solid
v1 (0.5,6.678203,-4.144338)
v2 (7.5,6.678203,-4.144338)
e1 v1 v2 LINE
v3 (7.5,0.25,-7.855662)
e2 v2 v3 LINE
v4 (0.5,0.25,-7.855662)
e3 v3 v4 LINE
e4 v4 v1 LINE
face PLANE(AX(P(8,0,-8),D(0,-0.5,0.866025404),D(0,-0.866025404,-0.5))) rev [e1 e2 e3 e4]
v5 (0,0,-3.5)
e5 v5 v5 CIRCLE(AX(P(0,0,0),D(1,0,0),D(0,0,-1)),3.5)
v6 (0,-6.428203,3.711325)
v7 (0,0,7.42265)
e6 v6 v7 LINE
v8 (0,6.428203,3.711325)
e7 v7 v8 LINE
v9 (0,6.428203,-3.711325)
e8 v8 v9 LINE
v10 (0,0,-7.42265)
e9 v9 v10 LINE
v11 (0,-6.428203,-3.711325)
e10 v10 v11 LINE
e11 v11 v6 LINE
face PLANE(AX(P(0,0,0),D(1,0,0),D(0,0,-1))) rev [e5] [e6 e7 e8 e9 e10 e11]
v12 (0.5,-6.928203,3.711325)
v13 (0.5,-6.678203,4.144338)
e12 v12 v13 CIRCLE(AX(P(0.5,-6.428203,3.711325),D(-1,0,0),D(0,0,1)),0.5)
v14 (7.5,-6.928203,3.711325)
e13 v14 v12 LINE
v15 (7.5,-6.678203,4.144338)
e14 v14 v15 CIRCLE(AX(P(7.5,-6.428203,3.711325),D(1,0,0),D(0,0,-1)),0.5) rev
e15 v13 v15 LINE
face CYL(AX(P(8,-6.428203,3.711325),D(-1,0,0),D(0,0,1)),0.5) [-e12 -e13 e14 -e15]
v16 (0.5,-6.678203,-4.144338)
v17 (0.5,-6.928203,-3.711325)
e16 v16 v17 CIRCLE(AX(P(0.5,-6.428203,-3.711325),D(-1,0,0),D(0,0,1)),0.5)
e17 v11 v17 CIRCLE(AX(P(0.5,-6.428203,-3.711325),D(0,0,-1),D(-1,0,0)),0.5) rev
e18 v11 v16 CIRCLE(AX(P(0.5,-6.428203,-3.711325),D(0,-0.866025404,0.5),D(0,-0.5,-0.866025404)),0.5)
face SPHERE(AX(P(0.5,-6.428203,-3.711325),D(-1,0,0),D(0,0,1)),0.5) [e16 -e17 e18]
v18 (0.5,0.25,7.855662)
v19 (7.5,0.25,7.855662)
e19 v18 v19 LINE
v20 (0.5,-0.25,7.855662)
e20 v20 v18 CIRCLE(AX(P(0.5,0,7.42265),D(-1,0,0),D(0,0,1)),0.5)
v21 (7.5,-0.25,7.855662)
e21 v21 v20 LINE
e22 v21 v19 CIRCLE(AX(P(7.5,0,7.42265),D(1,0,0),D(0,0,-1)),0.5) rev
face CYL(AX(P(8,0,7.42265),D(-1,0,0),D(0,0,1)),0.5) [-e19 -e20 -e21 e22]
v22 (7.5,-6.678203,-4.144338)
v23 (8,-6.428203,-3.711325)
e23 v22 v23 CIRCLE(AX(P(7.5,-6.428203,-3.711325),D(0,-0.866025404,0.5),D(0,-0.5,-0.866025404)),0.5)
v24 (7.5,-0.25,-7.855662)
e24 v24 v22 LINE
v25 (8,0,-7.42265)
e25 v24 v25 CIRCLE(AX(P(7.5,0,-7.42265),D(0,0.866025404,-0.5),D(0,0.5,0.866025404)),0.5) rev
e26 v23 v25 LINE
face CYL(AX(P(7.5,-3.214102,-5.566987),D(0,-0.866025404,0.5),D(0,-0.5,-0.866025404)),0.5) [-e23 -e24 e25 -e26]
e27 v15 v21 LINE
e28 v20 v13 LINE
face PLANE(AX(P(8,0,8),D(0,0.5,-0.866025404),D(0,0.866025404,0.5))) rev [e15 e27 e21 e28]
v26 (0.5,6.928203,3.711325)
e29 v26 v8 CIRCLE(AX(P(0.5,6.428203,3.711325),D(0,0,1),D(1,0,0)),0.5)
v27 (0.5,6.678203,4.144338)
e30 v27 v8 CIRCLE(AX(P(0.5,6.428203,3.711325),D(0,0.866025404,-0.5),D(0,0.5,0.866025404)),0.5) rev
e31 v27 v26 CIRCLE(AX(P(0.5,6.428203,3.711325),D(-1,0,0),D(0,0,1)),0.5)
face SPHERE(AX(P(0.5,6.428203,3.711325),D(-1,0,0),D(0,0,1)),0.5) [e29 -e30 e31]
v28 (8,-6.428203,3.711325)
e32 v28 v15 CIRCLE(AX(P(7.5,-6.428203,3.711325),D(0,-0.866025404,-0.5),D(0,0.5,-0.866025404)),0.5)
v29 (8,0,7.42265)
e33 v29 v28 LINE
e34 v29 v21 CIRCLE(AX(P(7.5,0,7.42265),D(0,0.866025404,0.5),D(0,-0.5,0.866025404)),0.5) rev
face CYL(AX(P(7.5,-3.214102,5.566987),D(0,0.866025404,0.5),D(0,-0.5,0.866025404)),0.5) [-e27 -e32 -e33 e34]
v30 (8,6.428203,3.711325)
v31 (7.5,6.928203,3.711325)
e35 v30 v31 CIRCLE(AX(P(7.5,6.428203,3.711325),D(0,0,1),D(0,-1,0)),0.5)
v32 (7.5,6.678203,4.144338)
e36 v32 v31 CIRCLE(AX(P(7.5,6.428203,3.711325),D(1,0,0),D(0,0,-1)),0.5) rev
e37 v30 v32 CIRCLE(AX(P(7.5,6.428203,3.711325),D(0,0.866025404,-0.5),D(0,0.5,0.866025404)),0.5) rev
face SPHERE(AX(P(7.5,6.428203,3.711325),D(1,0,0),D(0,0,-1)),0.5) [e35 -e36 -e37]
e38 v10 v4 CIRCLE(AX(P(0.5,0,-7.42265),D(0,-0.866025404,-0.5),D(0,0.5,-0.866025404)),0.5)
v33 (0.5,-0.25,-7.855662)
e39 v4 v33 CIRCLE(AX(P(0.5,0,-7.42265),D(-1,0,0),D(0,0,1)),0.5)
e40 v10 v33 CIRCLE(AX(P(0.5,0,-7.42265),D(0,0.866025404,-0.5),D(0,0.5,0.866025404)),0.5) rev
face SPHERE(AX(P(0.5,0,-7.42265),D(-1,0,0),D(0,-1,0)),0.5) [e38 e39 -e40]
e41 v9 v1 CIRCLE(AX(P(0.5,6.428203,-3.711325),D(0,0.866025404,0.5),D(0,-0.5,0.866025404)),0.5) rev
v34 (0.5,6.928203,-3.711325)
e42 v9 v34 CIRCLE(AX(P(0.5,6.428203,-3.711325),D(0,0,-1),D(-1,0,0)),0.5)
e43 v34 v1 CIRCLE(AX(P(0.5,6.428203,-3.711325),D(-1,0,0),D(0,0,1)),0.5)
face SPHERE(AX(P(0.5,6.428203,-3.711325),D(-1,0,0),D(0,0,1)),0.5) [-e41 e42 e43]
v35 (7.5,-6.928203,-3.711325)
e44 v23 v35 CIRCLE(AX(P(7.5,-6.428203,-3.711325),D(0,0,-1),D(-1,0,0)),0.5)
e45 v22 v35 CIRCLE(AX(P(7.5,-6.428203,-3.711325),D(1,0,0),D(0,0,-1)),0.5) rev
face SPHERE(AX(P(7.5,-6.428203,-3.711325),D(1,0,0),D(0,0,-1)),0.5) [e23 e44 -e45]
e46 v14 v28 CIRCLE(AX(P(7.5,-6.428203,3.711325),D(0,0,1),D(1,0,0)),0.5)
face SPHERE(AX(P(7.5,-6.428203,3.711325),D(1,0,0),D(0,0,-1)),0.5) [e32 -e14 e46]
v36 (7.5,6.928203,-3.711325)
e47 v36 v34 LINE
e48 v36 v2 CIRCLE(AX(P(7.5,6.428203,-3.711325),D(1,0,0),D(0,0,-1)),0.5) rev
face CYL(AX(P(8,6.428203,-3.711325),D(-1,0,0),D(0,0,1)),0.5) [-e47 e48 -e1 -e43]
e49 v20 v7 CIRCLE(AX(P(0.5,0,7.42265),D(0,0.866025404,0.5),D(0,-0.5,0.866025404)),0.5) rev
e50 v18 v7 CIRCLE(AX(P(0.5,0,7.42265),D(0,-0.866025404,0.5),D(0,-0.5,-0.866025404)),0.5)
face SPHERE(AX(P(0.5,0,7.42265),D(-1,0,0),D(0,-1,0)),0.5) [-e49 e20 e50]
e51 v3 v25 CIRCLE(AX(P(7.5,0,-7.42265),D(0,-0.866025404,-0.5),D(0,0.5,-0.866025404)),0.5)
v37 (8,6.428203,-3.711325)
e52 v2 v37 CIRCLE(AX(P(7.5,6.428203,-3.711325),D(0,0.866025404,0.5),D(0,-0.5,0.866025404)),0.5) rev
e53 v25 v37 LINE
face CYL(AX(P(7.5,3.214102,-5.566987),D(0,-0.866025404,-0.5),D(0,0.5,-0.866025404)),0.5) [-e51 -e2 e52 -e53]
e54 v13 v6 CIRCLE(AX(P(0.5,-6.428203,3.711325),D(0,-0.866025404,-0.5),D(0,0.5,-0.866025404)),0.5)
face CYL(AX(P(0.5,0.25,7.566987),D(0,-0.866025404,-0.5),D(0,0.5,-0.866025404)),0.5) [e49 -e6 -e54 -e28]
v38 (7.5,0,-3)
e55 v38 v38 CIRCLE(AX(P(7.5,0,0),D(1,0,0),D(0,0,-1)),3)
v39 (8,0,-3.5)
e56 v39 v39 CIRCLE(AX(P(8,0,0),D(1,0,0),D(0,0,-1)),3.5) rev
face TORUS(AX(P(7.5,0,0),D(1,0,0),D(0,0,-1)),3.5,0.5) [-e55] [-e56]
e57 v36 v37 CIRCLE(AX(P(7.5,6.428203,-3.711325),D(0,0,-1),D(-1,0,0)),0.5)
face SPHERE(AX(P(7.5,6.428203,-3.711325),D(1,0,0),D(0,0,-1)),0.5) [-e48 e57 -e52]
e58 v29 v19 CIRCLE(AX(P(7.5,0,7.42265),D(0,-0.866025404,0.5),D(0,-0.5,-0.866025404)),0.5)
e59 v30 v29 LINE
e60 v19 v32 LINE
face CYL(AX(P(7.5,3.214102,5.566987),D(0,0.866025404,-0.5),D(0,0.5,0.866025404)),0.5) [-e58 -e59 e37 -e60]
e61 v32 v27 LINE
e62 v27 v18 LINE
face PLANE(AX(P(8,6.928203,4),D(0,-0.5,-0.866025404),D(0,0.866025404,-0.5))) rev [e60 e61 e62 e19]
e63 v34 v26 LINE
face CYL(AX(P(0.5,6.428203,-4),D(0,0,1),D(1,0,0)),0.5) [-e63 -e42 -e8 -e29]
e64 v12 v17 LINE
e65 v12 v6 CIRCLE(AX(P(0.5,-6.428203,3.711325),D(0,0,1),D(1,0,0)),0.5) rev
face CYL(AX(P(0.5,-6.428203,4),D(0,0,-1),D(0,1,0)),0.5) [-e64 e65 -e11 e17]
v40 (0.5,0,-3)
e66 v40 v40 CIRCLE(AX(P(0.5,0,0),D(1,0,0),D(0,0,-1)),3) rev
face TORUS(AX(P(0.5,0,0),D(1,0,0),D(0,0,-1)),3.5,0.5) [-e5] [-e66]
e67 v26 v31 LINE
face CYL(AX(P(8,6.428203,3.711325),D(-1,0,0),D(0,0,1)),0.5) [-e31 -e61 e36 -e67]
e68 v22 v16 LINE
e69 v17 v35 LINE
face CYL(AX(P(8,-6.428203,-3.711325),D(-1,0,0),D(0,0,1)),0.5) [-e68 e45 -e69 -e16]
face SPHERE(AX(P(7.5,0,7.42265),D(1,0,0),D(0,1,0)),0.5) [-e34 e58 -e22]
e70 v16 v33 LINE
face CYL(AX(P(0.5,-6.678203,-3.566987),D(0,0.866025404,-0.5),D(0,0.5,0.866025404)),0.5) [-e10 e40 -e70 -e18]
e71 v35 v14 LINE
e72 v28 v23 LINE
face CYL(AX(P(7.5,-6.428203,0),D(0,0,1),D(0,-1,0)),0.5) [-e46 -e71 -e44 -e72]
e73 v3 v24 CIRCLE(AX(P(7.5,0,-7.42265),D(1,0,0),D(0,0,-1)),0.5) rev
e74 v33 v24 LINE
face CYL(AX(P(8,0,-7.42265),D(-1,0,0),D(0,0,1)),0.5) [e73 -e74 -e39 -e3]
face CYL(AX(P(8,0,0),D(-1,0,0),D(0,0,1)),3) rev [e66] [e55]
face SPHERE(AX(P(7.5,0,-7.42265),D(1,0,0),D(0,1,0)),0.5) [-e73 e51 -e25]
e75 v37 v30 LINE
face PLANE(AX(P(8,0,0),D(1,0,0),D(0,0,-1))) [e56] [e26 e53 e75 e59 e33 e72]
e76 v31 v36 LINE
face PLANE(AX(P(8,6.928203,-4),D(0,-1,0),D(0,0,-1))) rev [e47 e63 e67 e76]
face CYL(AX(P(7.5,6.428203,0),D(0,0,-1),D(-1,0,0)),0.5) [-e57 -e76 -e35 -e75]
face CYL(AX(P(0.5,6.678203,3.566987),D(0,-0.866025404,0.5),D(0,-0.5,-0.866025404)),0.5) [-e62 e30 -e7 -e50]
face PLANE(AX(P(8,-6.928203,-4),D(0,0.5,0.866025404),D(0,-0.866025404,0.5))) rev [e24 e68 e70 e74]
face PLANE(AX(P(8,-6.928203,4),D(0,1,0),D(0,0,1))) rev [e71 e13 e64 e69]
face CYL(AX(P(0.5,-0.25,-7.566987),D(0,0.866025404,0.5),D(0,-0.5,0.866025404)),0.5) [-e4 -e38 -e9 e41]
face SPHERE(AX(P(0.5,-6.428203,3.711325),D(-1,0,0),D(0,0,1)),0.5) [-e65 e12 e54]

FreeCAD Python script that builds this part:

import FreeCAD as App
import Part
import Sketcher
Q = App.Units.Quantity

doc = App.newDocument("Part")
params = doc.addObject("Spreadsheet::Sheet", "Params")
for row, (alias, value) in enumerate([
    ("sketch1_diameter", "6 mm"),
    ("sketch1_height", "8 mm"),
    ("sketch1_length", "8 mm"),
    ("pad1_length", "8 mm"),
    ("fillet_radius", "0.5 mm"),
], start=1):
    params.set(f"A{row}", alias)
    params.set(f"B{row}", "=" + value)
    params.setAlias(f"B{row}", alias)

body = doc.addObject("PartDesign::Body", "Body")

sketch1 = doc.addObject("Sketcher::SketchObject", "Sketch")
body.addObject(sketch1)
sketch1.AttachmentSupport = (doc.YZ_Plane, [""])
sketch1.MapMode = "FlatFace"
sketch1.addGeometry([
    Part.LineSegment(App.Vector(-6.9, -4, 0), App.Vector(0, -8, 0)),
    Part.LineSegment(App.Vector(0, -8, 0), App.Vector(6.9, -4, 0)),
    Part.LineSegment(App.Vector(6.9, -4, 0), App.Vector(6.9, 4, 0)),
    Part.LineSegment(App.Vector(6.9, 4, 0), App.Vector(0, 8, 0)),
    Part.LineSegment(App.Vector(0, 8, 0), App.Vector(-6.9, 4, 0)),
    Part.LineSegment(App.Vector(-6.9, 4, 0), App.Vector(-6.9, -4, 0)),
    Part.Circle(App.Vector(0, 0, 0), App.Vector(0, 0, 1), 3),
], False)
sketch1.addConstraint([
    Sketcher.Constraint("Coincident", 0, 2, 1, 1),
    Sketcher.Constraint("Coincident", 1, 2, 2, 1),
    Sketcher.Constraint("Coincident", 2, 2, 3, 1),
    Sketcher.Constraint("Coincident", 3, 2, 4, 1),
    Sketcher.Constraint("Coincident", 4, 2, 5, 1),
    Sketcher.Constraint("Coincident", 5, 2, 0, 1),
    Sketcher.Constraint("Vertical", 2),
    Sketcher.Constraint("Vertical", 5),
    Sketcher.Constraint("Coincident", 6, 3, -1, 1),
    Sketcher.Constraint("Symmetric", 0, 2, 3, 2, -1, 1),
    Sketcher.Constraint("Symmetric", 1, 2, 4, 2, -1, 1),
    Sketcher.Constraint("PointOnObject", 0, 2, -2),
    Sketcher.Constraint("Parallel", 0, 3),
    Sketcher.Constraint("Horizontal", 2, 2, 4, 2),
    Sketcher.Constraint("Diameter", 6, 6.0),
    Sketcher.Constraint("DistanceY", 2, 1, 2, 2, 8.0),
    Sketcher.Constraint("Angle", 0, Q("-30 deg")),
    Sketcher.Constraint("Distance", 0, 8.0),
])
sketch1.setExpression("Constraints[14]", "Params.sketch1_diameter")
sketch1.setExpression("Constraints[15]", "Params.sketch1_height")
sketch1.setExpression("Constraints[17]", "Params.sketch1_length")
pad1 = doc.addObject("PartDesign::Pad", "Pad")
body.addObject(pad1)
pad1.Profile = sketch1
pad1.setExpression("Length", "Params.pad1_length")
doc.recompute()

fillet = doc.addObject("PartDesign::Fillet", "Fillet")
body.addObject(fillet)
fillet.Base = (pad1, ["Edge1"])
fillet.UseAllEdges = True
fillet.setExpression("Radius", "Params.fillet_radius")

doc.recompute()
